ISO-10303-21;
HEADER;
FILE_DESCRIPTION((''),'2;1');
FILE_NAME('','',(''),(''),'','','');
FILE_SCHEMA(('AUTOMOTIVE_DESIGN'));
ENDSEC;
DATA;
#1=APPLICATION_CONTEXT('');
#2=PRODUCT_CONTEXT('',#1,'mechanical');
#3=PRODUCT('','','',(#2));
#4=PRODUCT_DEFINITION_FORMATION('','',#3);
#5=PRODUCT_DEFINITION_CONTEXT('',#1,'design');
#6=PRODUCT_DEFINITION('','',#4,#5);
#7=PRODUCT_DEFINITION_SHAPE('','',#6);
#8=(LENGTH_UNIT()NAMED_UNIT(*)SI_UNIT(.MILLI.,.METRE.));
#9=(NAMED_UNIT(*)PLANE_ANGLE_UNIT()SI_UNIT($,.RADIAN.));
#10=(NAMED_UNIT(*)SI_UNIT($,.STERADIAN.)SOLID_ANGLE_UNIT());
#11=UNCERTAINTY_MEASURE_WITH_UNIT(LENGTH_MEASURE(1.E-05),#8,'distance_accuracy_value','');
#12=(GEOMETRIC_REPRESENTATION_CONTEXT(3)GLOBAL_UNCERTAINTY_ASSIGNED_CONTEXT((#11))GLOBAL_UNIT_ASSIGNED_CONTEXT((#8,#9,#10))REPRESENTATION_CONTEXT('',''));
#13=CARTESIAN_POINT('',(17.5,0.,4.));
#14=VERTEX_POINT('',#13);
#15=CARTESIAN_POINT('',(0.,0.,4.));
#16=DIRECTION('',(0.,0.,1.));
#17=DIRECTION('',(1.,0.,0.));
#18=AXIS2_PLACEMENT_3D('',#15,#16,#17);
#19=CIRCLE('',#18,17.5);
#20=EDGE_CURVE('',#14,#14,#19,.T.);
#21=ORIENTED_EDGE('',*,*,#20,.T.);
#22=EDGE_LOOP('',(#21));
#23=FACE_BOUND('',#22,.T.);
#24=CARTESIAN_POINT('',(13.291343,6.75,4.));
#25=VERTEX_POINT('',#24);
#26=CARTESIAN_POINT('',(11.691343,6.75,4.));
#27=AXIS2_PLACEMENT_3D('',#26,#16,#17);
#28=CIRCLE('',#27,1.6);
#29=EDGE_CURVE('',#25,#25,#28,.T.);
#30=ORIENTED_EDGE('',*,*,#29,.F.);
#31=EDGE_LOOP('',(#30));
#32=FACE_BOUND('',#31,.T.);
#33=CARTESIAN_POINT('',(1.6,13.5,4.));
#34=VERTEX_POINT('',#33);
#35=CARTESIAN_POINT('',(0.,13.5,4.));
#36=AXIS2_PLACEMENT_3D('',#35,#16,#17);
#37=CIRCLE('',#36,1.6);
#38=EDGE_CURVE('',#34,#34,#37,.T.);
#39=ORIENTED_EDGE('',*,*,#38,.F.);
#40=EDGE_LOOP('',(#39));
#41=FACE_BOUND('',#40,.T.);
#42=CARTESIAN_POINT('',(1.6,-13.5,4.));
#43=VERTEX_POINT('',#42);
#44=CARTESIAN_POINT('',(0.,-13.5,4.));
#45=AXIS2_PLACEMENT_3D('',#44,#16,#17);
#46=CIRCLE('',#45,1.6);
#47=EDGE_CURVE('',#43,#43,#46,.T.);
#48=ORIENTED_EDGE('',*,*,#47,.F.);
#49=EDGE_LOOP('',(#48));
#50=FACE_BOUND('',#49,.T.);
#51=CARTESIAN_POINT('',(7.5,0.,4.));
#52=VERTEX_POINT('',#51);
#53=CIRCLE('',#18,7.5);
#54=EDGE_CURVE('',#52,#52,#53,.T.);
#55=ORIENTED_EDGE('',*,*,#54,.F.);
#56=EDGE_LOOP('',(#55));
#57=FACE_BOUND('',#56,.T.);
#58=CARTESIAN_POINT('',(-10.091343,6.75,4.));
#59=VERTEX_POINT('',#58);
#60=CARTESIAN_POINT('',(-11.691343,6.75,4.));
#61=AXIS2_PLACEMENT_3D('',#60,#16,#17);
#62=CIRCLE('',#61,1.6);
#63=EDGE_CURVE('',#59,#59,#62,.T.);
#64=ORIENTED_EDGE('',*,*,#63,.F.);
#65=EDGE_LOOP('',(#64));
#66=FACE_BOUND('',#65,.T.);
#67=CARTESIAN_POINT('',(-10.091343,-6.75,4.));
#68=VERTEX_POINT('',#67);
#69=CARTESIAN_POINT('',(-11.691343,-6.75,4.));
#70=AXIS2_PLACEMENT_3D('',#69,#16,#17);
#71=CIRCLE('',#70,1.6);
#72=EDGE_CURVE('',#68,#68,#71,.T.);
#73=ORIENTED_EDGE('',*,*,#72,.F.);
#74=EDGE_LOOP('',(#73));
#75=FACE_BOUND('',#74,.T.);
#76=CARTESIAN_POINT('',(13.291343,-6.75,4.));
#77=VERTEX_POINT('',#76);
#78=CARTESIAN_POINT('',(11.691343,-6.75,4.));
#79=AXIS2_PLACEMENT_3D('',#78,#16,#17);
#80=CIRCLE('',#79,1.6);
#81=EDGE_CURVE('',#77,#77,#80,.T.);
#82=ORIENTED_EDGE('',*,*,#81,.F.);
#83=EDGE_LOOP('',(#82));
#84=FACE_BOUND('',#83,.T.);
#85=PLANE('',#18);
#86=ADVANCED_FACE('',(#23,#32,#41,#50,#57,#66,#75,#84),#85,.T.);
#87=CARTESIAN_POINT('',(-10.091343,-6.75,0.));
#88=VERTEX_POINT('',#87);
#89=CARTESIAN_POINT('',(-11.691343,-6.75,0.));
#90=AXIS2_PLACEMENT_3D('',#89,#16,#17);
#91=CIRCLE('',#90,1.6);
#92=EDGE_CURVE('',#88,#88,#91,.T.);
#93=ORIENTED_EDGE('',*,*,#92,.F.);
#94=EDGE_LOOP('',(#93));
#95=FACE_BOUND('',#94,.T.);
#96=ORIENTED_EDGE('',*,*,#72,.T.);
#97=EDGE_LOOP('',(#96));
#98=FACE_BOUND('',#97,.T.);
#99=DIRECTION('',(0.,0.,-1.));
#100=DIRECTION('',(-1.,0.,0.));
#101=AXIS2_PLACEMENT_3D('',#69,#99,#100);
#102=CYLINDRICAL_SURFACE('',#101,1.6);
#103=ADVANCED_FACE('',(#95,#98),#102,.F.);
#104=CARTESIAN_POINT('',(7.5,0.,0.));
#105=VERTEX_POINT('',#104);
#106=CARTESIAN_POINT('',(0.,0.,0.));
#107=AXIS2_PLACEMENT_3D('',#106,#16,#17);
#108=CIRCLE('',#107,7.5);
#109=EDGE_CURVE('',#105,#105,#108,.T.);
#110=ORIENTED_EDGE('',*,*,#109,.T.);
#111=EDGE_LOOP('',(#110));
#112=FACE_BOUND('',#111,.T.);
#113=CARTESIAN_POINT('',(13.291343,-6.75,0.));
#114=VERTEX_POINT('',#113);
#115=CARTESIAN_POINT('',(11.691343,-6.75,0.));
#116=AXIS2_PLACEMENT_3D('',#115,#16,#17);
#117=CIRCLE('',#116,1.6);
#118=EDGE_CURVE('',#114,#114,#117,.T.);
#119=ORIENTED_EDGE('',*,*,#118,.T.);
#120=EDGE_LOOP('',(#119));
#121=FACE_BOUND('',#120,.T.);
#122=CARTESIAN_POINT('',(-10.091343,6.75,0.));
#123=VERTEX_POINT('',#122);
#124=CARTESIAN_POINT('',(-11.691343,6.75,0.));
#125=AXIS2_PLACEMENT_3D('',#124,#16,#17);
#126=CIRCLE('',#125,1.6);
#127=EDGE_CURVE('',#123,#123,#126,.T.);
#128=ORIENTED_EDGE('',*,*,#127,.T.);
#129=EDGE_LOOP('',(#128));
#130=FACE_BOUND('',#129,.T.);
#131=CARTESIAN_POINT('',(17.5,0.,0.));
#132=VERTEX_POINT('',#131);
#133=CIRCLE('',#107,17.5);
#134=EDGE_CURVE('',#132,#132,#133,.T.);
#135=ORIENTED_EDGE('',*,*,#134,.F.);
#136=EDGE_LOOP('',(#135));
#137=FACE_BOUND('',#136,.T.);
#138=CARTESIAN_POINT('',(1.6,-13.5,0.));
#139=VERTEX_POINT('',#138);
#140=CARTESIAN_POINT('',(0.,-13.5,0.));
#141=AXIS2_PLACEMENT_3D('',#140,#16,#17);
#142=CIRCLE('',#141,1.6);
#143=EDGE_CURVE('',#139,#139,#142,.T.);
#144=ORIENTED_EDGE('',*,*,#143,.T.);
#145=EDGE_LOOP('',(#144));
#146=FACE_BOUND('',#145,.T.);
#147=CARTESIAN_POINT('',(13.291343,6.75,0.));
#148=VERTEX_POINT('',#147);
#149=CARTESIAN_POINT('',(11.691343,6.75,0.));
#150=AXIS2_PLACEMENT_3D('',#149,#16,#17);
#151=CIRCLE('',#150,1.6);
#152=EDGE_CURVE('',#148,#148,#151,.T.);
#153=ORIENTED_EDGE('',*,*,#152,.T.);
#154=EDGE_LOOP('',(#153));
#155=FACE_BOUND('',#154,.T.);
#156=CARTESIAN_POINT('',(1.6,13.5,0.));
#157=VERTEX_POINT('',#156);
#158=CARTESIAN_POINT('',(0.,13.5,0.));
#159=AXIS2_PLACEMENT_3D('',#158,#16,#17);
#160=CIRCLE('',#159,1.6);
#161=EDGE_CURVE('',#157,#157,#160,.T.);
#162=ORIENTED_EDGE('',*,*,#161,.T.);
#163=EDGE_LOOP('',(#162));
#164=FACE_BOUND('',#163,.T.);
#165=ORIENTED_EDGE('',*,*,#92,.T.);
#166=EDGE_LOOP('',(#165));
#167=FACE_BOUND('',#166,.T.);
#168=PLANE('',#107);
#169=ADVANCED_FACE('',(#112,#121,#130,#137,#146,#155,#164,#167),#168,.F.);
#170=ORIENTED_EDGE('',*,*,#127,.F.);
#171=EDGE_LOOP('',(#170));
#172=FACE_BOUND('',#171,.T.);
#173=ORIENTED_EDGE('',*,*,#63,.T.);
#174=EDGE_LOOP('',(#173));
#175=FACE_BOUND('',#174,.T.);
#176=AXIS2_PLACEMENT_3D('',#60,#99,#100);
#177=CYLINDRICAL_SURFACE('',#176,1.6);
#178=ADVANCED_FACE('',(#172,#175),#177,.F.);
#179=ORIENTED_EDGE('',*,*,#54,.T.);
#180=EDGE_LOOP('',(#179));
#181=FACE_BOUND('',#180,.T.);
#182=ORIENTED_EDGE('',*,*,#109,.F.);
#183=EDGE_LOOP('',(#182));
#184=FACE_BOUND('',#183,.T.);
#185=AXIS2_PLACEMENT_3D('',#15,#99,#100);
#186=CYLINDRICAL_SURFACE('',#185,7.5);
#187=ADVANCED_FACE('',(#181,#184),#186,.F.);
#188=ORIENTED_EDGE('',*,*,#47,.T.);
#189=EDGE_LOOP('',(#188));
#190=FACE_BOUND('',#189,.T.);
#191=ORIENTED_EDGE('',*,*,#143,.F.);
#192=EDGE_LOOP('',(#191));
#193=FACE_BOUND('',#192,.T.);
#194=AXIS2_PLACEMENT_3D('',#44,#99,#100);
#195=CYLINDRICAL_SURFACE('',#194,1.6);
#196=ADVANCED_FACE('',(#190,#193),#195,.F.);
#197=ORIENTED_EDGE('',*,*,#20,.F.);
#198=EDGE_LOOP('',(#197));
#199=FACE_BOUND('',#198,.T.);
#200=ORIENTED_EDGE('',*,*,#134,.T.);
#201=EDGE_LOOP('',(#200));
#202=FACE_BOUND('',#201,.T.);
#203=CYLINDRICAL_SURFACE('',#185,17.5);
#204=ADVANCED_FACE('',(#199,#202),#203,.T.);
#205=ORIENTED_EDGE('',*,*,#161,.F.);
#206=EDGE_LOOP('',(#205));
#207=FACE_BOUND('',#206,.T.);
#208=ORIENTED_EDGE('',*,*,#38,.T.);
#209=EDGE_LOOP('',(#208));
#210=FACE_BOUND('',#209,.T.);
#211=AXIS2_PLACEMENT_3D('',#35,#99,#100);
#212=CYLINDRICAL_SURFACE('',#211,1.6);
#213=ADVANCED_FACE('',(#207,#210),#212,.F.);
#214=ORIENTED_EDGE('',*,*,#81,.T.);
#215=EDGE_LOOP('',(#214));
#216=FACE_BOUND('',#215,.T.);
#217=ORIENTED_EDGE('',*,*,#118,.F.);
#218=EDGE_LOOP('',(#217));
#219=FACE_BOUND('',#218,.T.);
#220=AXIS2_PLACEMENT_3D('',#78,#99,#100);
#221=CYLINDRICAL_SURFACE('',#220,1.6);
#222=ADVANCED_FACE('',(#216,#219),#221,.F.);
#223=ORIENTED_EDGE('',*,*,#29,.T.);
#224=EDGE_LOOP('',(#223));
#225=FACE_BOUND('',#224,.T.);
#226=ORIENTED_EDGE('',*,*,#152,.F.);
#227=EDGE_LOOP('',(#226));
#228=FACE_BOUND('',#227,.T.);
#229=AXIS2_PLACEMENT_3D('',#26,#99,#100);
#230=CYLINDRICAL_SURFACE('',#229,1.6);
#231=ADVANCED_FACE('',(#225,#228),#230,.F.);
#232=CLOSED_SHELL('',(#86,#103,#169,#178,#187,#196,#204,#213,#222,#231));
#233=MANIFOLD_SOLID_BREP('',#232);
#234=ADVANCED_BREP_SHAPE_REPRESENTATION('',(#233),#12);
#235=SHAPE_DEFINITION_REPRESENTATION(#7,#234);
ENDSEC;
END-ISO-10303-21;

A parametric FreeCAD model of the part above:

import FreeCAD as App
import Part
import Sketcher
Q = App.Units.Quantity

doc = App.newDocument("Part")
body = doc.addObject("PartDesign::Body", "Body")

# Sketch on XY plane
sketch1 = doc.addObject("Sketcher::SketchObject", "Sketch")
body.addObject(sketch1)
sketch1.AttachmentSupport = (doc.XY_Plane, [""])
sketch1.MapMode = "FlatFace"
sketch1.addGeometry([
    Part.Circle(App.Vector(0, 0, 0), App.Vector(0, 0, 1), 17.5),  # 0
    Part.Circle(App.Vector(-11.691343, -6.75, 0), App.Vector(0, 0, 1), 1.6),  # 1
    Part.Circle(App.Vector(0, -13.5, 0), App.Vector(0, 0, 1), 1.6),  # 2
    Part.Circle(App.Vector(11.691343, -6.75, 0), App.Vector(0, 0, 1), 1.6),  # 3
    Part.Circle(App.Vector(-11.691343, 6.75, 0), App.Vector(0, 0, 1), 1.6),  # 4
    Part.Circle(App.Vector(0, 0, 0), App.Vector(0, 0, 1), 7.5),  # 5
    Part.Circle(App.Vector(11.691343, 6.75, 0), App.Vector(0, 0, 1), 1.6),  # 6
    Part.Circle(App.Vector(0, 13.5, 0), App.Vector(0, 0, 1), 1.6),  # 7
], False)
sketch1.addConstraint([
    Sketcher.Constraint("Coincident", 0, 3, -1, 1),
    Sketcher.Constraint("Coincident", 5, 3, -1, 1),
    Sketcher.Constraint("Equal", 1, 2),
    Sketcher.Constraint("Equal", 2, 3),
    Sketcher.Constraint("Equal", 3, 4),
    Sketcher.Constraint("Equal", 4, 6),
    Sketcher.Constraint("Equal", 6, 7),
    Sketcher.Constraint("Symmetric", 3, 3, 4, 3, -1, 1),
    Sketcher.Constraint("Symmetric", 1, 3, 6, 3, -1, 1),
    Sketcher.Constraint("Symmetric", 2, 3, 7, 3, -1, 1),
    Sketcher.Constraint("Symmetric", 1, 3, 3, 3, -2),
    Sketcher.Constraint("PointOnObject", 2, 3, -2),
    Sketcher.Constraint("Diameter", 0, Q("35 mm")),
    Sketcher.Constraint("Diameter", 5, Q("15 mm")),
    Sketcher.Constraint("Diameter", 1, Q("3.2 mm")),
    Sketcher.Constraint("DistanceY", 2, 3, -1, 1, Q("13.5 mm")),
    Sketcher.Constraint("DistanceY", 1, 3, 4, 3, Q("13.5 mm")),
    Sketcher.Constraint("DistanceX", 1, 3, -1, 1, Q("11.691343 mm")),
])
pad1 = doc.addObject("PartDesign::Pad", "Pad")
body.addObject(pad1)
pad1.Profile = sketch1
pad1.Length = 4

doc.recompute()
